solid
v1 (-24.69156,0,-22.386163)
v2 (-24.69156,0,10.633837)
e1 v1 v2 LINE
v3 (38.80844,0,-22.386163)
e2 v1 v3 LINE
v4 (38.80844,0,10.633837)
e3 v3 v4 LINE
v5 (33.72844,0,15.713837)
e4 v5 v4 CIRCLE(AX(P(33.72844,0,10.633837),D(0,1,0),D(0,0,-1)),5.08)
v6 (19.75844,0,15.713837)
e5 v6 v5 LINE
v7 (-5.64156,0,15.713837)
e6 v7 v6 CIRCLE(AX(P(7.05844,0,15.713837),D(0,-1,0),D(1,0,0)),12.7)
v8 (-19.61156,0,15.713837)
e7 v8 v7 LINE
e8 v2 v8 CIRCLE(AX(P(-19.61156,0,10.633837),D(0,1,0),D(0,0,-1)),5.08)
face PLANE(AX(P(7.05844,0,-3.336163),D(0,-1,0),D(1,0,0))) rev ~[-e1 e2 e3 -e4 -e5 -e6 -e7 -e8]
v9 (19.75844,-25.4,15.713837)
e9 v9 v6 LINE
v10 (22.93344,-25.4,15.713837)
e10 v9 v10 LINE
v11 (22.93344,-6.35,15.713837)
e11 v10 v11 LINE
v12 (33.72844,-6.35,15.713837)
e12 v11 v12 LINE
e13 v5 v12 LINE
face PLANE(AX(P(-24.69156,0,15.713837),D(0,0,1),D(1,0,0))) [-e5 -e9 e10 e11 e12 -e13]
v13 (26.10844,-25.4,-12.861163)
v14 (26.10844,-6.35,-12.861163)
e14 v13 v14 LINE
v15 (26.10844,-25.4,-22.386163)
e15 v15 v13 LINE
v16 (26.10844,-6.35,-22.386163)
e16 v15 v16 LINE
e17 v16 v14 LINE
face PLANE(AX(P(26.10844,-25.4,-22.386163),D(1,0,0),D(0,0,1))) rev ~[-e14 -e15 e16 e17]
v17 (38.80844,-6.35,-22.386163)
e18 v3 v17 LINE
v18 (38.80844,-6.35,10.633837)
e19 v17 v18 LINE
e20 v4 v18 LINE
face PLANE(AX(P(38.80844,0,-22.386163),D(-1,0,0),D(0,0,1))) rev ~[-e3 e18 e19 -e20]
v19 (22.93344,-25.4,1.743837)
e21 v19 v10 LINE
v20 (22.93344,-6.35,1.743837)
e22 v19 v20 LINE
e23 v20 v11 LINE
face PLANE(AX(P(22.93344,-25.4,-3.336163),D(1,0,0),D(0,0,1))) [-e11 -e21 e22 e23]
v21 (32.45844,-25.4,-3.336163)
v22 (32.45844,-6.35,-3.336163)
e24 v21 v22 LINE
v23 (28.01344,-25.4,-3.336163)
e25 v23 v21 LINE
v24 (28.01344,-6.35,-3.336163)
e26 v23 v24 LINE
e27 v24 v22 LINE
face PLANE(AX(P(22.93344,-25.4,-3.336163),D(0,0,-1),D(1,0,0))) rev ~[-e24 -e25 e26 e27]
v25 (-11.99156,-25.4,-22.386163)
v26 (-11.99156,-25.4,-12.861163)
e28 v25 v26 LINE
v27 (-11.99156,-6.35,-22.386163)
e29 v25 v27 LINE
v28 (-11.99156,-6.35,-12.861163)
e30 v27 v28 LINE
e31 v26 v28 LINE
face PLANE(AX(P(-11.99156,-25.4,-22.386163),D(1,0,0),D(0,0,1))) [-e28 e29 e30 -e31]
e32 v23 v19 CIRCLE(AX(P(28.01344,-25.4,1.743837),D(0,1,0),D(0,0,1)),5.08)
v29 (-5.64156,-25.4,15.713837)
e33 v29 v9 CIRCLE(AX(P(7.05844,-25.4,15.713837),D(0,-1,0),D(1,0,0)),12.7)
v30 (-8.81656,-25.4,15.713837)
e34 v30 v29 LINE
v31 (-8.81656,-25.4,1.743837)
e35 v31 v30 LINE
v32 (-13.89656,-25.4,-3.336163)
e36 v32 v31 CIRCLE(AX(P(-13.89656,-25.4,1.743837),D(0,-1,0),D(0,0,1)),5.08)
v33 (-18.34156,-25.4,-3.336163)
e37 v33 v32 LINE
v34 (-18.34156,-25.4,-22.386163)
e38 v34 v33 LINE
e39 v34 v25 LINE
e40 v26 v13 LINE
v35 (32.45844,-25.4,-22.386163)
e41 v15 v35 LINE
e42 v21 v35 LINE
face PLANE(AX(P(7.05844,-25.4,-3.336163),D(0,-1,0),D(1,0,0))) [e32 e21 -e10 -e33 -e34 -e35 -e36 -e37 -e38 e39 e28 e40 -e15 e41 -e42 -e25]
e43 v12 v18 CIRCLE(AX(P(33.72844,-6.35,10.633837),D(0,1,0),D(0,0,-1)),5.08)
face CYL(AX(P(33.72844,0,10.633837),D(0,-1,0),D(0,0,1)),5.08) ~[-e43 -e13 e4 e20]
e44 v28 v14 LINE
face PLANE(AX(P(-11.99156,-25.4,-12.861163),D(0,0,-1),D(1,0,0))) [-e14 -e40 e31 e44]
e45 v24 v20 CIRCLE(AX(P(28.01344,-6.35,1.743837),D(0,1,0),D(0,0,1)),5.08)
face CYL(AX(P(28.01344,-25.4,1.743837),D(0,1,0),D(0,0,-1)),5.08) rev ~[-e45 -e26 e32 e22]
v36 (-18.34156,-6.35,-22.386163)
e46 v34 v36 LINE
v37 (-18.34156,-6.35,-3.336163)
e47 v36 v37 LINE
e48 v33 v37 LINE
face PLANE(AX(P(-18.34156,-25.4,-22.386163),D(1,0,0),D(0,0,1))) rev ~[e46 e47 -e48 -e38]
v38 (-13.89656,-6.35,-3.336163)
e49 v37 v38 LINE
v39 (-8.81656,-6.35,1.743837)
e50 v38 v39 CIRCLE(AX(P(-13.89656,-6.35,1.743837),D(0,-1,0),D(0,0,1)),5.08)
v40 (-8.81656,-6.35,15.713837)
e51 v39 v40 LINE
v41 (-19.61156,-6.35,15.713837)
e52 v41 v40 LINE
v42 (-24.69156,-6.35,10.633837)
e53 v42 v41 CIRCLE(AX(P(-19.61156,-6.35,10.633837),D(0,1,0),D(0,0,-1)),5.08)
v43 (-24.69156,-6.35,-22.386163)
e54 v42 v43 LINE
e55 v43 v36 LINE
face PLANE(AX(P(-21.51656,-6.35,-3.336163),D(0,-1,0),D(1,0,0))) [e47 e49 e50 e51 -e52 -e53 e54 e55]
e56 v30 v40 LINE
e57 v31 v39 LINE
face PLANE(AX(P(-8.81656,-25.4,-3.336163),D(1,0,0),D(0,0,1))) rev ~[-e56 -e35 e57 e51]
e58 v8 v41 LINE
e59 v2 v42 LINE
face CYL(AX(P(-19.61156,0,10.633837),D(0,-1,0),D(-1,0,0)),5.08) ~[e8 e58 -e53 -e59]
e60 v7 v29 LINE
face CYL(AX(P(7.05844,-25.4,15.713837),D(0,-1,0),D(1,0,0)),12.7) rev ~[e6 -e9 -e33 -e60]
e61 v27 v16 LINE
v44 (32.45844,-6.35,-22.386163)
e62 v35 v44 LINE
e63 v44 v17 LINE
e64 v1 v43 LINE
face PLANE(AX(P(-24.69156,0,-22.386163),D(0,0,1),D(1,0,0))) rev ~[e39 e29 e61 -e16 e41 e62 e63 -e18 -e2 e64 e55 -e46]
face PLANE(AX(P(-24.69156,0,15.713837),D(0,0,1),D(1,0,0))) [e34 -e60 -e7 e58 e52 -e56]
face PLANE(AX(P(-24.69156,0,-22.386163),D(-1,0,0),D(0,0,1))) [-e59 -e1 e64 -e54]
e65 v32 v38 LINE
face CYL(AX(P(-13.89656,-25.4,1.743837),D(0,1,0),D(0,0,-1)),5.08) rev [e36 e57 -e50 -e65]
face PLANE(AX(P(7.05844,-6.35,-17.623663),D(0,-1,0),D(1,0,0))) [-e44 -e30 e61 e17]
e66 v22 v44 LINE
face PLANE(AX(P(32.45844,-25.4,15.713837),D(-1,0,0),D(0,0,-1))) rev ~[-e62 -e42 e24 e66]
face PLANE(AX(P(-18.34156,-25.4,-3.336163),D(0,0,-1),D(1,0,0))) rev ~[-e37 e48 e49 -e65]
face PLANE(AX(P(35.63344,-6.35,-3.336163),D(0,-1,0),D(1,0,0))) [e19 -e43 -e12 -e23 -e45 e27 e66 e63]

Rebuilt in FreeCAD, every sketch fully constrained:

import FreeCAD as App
import Part
import Sketcher

V = App.Vector
Q = App.Units.Quantity


def edges_at(feature, points):
    """Names of the edges that pass closest to the given points."""
    edges = feature.Shape.Edges
    near = lambda p: min(range(len(edges)), key=lambda i: edges[i].distToShape(Part.Vertex(*p))[0])
    return sorted({f"Edge{near(p) + 1}" for p in points})

doc = App.newDocument("Part")
params = doc.addObject("Spreadsheet::Sheet", "Params")
for row, (alias, value) in enumerate([
    ("sketch1_width", "2.5 in"),
    ("sketch1_height", "1.5 in"),
    ("pad1_length", "1 in"),
    ("sketch2_diameter", "1 in"),
    ("pocket1_length", "1 in"),
    ("sketch3_height", "1.5 in"),
    ("sketch3_width", "0.25 in"),
    ("pocket2_length", "0.75 in"),
    ("sketch4_height", "1.5 in"),
    ("sketch4_width", "0.25 in"),
    ("pocket3_length", "0.75 in"),
    ("sketch5_width", "1.5 in"),
    ("sketch5_height", "0.375 in"),
    ("pocket4_length", "0.75 in"),
    ("sketch6_height", "0.75 in"),
    ("sketch6_width", "0.375 in"),
    ("pocket5_length", "0.75 in"),
    ("sketch7_height", "0.75 in"),
    ("sketch7_width", "0.375 in"),
    ("pocket6_length", "0.75 in"),
    ("fillet_radius", "0.2 in"),
], start=1):
    params.set(f"A{row}", alias)
    params.set(f"B{row}", "=" + value)
    params.setAlias(f"B{row}", alias)

body = doc.addObject("PartDesign::Body", "Body")

sketch1 = body.newObject("Sketcher::SketchObject", "Sketch")
sketch1.AttachmentSupport = (doc.getObject("XZ_Plane"), [""])
sketch1.MapMode = "FlatFace"
sketch1.addGeometry(Part.LineSegment(V(-25, 16, 0), V(-25, -22, 0)), False)
sketch1.addGeometry(Part.LineSegment(V(-25, -22, 0), V(39, -22, 0)), False)
sketch1.addGeometry(Part.LineSegment(V(39, -22, 0), V(39, 16, 0)), False)
sketch1.addGeometry(Part.LineSegment(V(39, 16, 0), V(-25, 16, 0)), False)
sketch1.addConstraint(Sketcher.Constraint("Coincident", 0, 2, 1, 1))
sketch1.addConstraint(Sketcher.Constraint("Coincident", 1, 2, 2, 1))
sketch1.addConstraint(Sketcher.Constraint("Coincident", 2, 2, 3, 1))
sketch1.addConstraint(Sketcher.Constraint("Coincident", 3, 2, 0, 1))
sketch1.addConstraint(Sketcher.Constraint("Vertical", 0))
sketch1.addConstraint(Sketcher.Constraint("Horizontal", 1))
sketch1.addConstraint(Sketcher.Constraint("Vertical", 2))
sketch1.addConstraint(Sketcher.Constraint("Horizontal", 3))
sketch1.addConstraint(Sketcher.Constraint("DistanceX", 1, 1, 1, 2, Q("2.5 in")))
sketch1.addConstraint(Sketcher.Constraint("DistanceY", 0, 2, 0, 1, Q("1.5 in")))
sketch1.addConstraint(Sketcher.Constraint("DistanceX", 0, 2, -1, 1, 24.69156))
sketch1.addConstraint(Sketcher.Constraint("DistanceY", 0, 2, -1, 1, 22.386163))
sketch1.setExpression("Constraints[8]", "Params.sketch1_width")
sketch1.setExpression("Constraints[9]", "Params.sketch1_height")
pad1 = body.newObject("PartDesign::Pad", "Pad")
pad1.Profile = sketch1
pad1.setExpression("Length", "Params.pad1_length")

sketch2 = body.newObject("Sketcher::SketchObject", "Sketch001")
sketch2.AttachmentSupport = (doc.getObject("XZ_Plane"), [""])
sketch2.MapMode = "FlatFace"
sketch2.AttachmentOffset = App.Placement(V(0, 0, 1 * 25.4), App.Rotation())
sketch2.addGeometry(Part.Circle(V(7, 16, 0), V(0, 0, 1), 13), False)
sketch2.addConstraint(Sketcher.Constraint("Diameter", 0, Q("1 in")))
sketch2.addConstraint(Sketcher.Constraint("DistanceX", -1, 1, 0, 3, 7.05844))
sketch2.addConstraint(Sketcher.Constraint("DistanceY", -1, 1, 0, 3, 15.713837))
sketch2.setExpression("Constraints[0]", "Params.sketch2_diameter")
pocket1 = body.newObject("PartDesign::Pocket", "Pocket")
pocket1.Profile = sketch2
pocket1.setExpression("Length", "Params.pocket1_length")

sketch3 = body.newObject("Sketcher::SketchObject", "Sketch002")
sketch3.AttachmentSupport = (doc.getObject("XZ_Plane"), [""])
sketch3.MapMode = "FlatFace"
sketch3.AttachmentOffset = App.Placement(V(0, 0, 1 * 25.4), App.Rotation())
sketch3.addGeometry(Part.LineSegment(V(32, -22, 0), V(39, -22, 0)), False)
sketch3.addGeometry(Part.LineSegment(V(39, -22, 0), V(39, 16, 0)), False)
sketch3.addGeometry(Part.LineSegment(V(39, 16, 0), V(32, 16, 0)), False)
sketch3.addGeometry(Part.LineSegment(V(32, 16, 0), V(32, -22, 0)), False)
sketch3.addConstraint(Sketcher.Constraint("Coincident", 0, 2, 1, 1))
sketch3.addConstraint(Sketcher.Constraint("Coincident", 1, 2, 2, 1))
sketch3.addConstraint(Sketcher.Constraint("Coincident", 2, 2, 3, 1))
sketch3.addConstraint(Sketcher.Constraint("Coincident", 3, 2, 0, 1))
sketch3.addConstraint(Sketcher.Constraint("Horizontal", 0))
sketch3.addConstraint(Sketcher.Constraint("Vertical", 1))
sketch3.addConstraint(Sketcher.Constraint("Horizontal", 2))
sketch3.addConstraint(Sketcher.Constraint("Vertical", 3))
sketch3.addConstraint(Sketcher.Constraint("DistanceY", 1, 1, 1, 2, Q("1.5 in")))
sketch3.addConstraint(Sketcher.Constraint("DistanceX", 0, 1, 0, 2, Q("0.25 in")))
sketch3.addConstraint(Sketcher.Constraint("DistanceX", -1, 1, 0, 2, 38.80844))
sketch3.addConstraint(Sketcher.Constraint("DistanceY", 0, 2, -1, 1, 22.386163))
sketch3.setExpression("Constraints[8]", "Params.sketch3_height")
sketch3.setExpression("Constraints[9]", "Params.sketch3_width")
pocket2 = body.newObject("PartDesign::Pocket", "Pocket001")
pocket2.Profile = sketch3
pocket2.setExpression("Length", "Params.pocket2_length")

sketch4 = body.newObject("Sketcher::SketchObject", "Sketch003")
sketch4.AttachmentSupport = (doc.getObject("XZ_Plane"), [""])
sketch4.MapMode = "FlatFace"
sketch4.AttachmentOffset = App.Placement(V(0, 0, 1 * 25.4), App.Rotation())
sketch4.addGeometry(Part.LineSegment(V(-18, 16, 0), V(-25, 16, 0)), False)
sketch4.addGeometry(Part.LineSegment(V(-25, 16, 0), V(-25, -22, 0)), False)
sketch4.addGeometry(Part.LineSegment(V(-25, -22, 0), V(-18, -22, 0)), False)
sketch4.addGeometry(Part.LineSegment(V(-18, -22, 0), V(-18, 16, 0)), False)
sketch4.addConstraint(Sketcher.Constraint("Coincident", 0, 2, 1, 1))
sketch4.addConstraint(Sketcher.Constraint("Coincident", 1, 2, 2, 1))
sketch4.addConstraint(Sketcher.Constraint("Coincident", 2, 2, 3, 1))
sketch4.addConstraint(Sketcher.Constraint("Coincident", 3, 2, 0, 1))
sketch4.addConstraint(Sketcher.Constraint("Horizontal", 0))
sketch4.addConstraint(Sketcher.Constraint("Vertical", 1))
sketch4.addConstraint(Sketcher.Constraint("Horizontal", 2))
sketch4.addConstraint(Sketcher.Constraint("Vertical", 3))
sketch4.addConstraint(Sketcher.Constraint("DistanceY", 1, 2, 1, 1, Q("1.5 in")))
sketch4.addConstraint(Sketcher.Constraint("DistanceX", 0, 2, 0, 1, Q("0.25 in")))
sketch4.addConstraint(Sketcher.Constraint("DistanceX", 0, 2, -1, 1, 24.69156))
sketch4.addConstraint(Sketcher.Constraint("DistanceY", -1, 1, 0, 2, 15.713837))
sketch4.setExpression("Constraints[8]", "Params.sketch4_height")
sketch4.setExpression("Constraints[9]", "Params.sketch4_width")
pocket3 = body.newObject("PartDesign::Pocket", "Pocket002")
pocket3.Profile = sketch4
pocket3.setExpression("Length", "Params.pocket3_length")

sketch5 = body.newObject("Sketcher::SketchObject", "Sketch004")
sketch5.AttachmentSupport = (doc.getObject("XZ_Plane"), [""])
sketch5.MapMode = "FlatFace"
sketch5.AttachmentOffset = App.Placement(V(0, 0, 1 * 25.4), App.Rotation())
sketch5.addGeometry(Part.LineSegment(V(-12, -13, 0), V(-12, -22, 0)), False)
sketch5.addGeometry(Part.LineSegment(V(-12, -22, 0), V(26, -22, 0)), False)
sketch5.addGeometry(Part.LineSegment(V(26, -22, 0), V(26, -13, 0)), False)
sketch5.addGeometry(Part.LineSegment(V(26, -13, 0), V(-12, -13, 0)), False)
sketch5.addConstraint(Sketcher.Constraint("Coincident", 0, 2, 1, 1))
sketch5.addConstraint(Sketcher.Constraint("Coincident", 1, 2, 2, 1))
sketch5.addConstraint(Sketcher.Constraint("Coincident", 2, 2, 3, 1))
sketch5.addConstraint(Sketcher.Constraint("Coincident", 3, 2, 0, 1))
sketch5.addConstraint(Sketcher.Constraint("Vertical", 0))
sketch5.addConstraint(Sketcher.Constraint("Horizontal", 1))
sketch5.addConstraint(Sketcher.Constraint("Vertical", 2))
sketch5.addConstraint(Sketcher.Constraint("Horizontal", 3))
sketch5.addConstraint(Sketcher.Constraint("DistanceX", 1, 1, 1, 2, Q("1.5 in")))
sketch5.addConstraint(Sketcher.Constraint("DistanceY", 0, 2, 0, 1, Q("0.375 in")))
sketch5.addConstraint(Sketcher.Constraint("DistanceX", 0, 2, -1, 1, 11.99156))
sketch5.addConstraint(Sketcher.Constraint("DistanceY", 0, 2, -1, 1, 22.386163))
sketch5.setExpression("Constraints[8]", "Params.sketch5_width")
sketch5.setExpression("Constraints[9]", "Params.sketch5_height")
pocket4 = body.newObject("PartDesign::Pocket", "Pocket003")
pocket4.Profile = sketch5
pocket4.setExpression("Length", "Params.pocket4_length")

sketch6 = body.newObject("Sketcher::SketchObject", "Sketch005")
sketch6.AttachmentSupport = (doc.getObject("XZ_Plane"), [""])
sketch6.MapMode = "FlatFace"
sketch6.AttachmentOffset = App.Placement(V(0, 0, 1 * 25.4), App.Rotation())
sketch6.addGeometry(Part.LineSegment(V(-18, 16, 0), V(-18, -3, 0)), False)
sketch6.addGeometry(Part.LineSegment(V(-18, -3, 0), V(-9, -3, 0)), False)
sketch6.addGeometry(Part.LineSegment(V(-9, -3, 0), V(-9, 16, 0)), False)
sketch6.addGeometry(Part.LineSegment(V(-9, 16, 0), V(-18, 16, 0)), False)
sketch6.addConstraint(Sketcher.Constraint("Coincident", 0, 2, 1, 1))
sketch6.addConstraint(Sketcher.Constraint("Coincident", 1, 2, 2, 1))
sketch6.addConstraint(Sketcher.Constraint("Coincident", 2, 2, 3, 1))
sketch6.addConstraint(Sketcher.Constraint("Coincident", 3, 2, 0, 1))
sketch6.addConstraint(Sketcher.Constraint("Vertical", 0))
sketch6.addConstraint(Sketcher.Constraint("Horizontal", 1))
sketch6.addConstraint(Sketcher.Constraint("Vertical", 2))
sketch6.addConstraint(Sketcher.Constraint("Horizontal", 3))
sketch6.addConstraint(Sketcher.Constraint("DistanceY", 0, 2, 0, 1, Q("0.75 in")))
sketch6.addConstraint(Sketcher.Constraint("DistanceX", 1, 1, 1, 2, Q("0.375 in")))
sketch6.addConstraint(Sketcher.Constraint("DistanceX", 0, 2, -1, 1, 18.34156))
sketch6.addConstraint(Sketcher.Constraint("DistanceY", 0, 2, -1, 1, 3.336163))
sketch6.setExpression("Constraints[8]", "Params.sketch6_height")
sketch6.setExpression("Constraints[9]", "Params.sketch6_width")
pocket5 = body.newObject("PartDesign::Pocket", "Pocket004")
pocket5.Profile = sketch6
pocket5.setExpression("Length", "Params.pocket5_length")

sketch7 = body.newObject("Sketcher::SketchObject", "Sketch006")
sketch7.AttachmentSupport = (doc.getObject("XZ_Plane"), [""])
sketch7.MapMode = "FlatFace"
sketch7.AttachmentOffset = App.Placement(V(0, 0, 1 * 25.4), App.Rotation())
sketch7.addGeometry(Part.LineSegment(V(23, 16, 0), V(23, -3, 0)), False)
sketch7.addGeometry(Part.LineSegment(V(23, -3, 0), V(32, -3, 0)), False)
sketch7.addGeometry(Part.LineSegment(V(32, -3, 0), V(32, 16, 0)), False)
sketch7.addGeometry(Part.LineSegment(V(32, 16, 0), V(23, 16, 0)), False)
sketch7.addConstraint(Sketcher.Constraint("Coincident", 0, 2, 1, 1))
sketch7.addConstraint(Sketcher.Constraint("Coincident", 1, 2, 2, 1))
sketch7.addConstraint(Sketcher.Constraint("Coincident", 2, 2, 3, 1))
sketch7.addConstraint(Sketcher.Constraint("Coincident", 3, 2, 0, 1))
sketch7.addConstraint(Sketcher.Constraint("Vertical", 0))
sketch7.addConstraint(Sketcher.Constraint("Horizontal", 1))
sketch7.addConstraint(Sketcher.Constraint("Vertical", 2))
sketch7.addConstraint(Sketcher.Constraint("Horizontal", 3))
sketch7.addConstraint(Sketcher.Constraint("DistanceY", 0, 2, 0, 1, Q("0.75 in")))
sketch7.addConstraint(Sketcher.Constraint("DistanceX", 1, 1, 1, 2, Q("0.375 in")))
sketch7.addConstraint(Sketcher.Constraint("DistanceX", -1, 1, 0, 2, 22.93344))
sketch7.addConstraint(Sketcher.Constraint("DistanceY", 0, 2, -1, 1, 3.336163))
sketch7.setExpression("Constraints[8]", "Params.sketch7_height")
sketch7.setExpression("Constraints[9]", "Params.sketch7_width")
pocket6 = body.newObject("PartDesign::Pocket", "Pocket005")
pocket6.Profile = sketch7
pocket6.setExpression("Length", "Params.pocket6_length")
doc.recompute()

fillet = body.newObject("PartDesign::Fillet", "Fillet")
fillet.Base = (pocket6, edges_at(pocket6, [
    (-24.692, -3.175, 15.714),
    (38.808, -3.175, 15.714),
    (22.933, -15.875, -3.336),
    (-8.817, -15.875, -3.336),
]))
fillet.setExpression("Radius", "Params.fillet_radius")

doc.recompute()
